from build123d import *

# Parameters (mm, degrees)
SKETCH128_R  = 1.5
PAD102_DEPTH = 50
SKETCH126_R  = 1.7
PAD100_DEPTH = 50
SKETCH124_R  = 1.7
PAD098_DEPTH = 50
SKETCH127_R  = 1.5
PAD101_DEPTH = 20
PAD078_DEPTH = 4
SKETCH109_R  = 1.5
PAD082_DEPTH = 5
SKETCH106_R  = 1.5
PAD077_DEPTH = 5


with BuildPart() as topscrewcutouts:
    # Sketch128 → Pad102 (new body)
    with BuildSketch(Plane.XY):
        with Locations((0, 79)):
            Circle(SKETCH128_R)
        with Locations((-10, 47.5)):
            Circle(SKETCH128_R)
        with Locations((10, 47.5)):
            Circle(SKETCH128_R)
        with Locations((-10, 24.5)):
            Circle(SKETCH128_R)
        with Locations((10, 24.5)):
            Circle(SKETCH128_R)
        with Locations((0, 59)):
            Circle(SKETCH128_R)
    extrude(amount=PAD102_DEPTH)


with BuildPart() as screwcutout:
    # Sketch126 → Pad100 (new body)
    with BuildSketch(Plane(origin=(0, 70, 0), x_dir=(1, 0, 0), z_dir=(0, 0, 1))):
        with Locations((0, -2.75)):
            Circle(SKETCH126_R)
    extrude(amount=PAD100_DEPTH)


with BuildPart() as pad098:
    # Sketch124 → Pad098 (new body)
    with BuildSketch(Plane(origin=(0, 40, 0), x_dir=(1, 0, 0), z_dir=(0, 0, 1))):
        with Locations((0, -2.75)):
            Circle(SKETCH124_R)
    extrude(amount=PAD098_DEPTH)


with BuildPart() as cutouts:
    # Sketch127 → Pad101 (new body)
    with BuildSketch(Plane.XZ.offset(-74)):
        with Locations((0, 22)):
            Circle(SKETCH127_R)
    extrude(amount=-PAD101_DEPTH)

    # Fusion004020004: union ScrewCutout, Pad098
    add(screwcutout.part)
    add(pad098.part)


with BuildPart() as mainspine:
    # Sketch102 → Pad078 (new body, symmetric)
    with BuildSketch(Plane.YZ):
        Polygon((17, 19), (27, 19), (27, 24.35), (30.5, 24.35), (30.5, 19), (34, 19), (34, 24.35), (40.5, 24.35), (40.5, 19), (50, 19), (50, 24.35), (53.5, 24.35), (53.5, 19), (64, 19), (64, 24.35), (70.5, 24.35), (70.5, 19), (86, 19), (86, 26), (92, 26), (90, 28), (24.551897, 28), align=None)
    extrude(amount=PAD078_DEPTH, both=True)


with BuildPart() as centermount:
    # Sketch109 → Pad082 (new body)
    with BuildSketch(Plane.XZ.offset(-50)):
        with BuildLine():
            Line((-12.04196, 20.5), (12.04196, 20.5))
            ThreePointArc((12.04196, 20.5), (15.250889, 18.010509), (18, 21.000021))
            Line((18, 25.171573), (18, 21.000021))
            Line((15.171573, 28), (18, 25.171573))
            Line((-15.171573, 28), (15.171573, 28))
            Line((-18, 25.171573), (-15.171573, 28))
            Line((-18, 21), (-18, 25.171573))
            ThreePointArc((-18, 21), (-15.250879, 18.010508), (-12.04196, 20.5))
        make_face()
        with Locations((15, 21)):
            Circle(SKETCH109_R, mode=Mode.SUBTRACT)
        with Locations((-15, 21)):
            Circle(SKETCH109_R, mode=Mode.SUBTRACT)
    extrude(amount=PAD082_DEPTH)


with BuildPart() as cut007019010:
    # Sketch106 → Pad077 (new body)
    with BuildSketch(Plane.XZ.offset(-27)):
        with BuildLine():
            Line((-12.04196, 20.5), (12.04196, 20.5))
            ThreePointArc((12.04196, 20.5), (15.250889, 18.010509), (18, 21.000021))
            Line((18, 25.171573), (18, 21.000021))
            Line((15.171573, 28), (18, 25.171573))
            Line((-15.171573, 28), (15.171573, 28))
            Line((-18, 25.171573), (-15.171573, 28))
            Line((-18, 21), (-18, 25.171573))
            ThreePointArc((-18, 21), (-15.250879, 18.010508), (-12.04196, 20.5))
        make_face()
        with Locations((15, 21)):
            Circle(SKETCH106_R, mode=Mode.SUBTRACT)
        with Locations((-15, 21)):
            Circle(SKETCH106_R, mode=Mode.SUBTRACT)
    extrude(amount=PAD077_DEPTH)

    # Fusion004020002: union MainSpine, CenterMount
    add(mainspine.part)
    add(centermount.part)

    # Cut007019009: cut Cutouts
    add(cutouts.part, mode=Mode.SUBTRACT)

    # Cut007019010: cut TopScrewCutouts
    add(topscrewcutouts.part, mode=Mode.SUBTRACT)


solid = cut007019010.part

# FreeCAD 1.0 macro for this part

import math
import FreeCAD as App
import Part
import Sketcher
Q = App.Units.Quantity

doc = App.newDocument("Part")
body = doc.addObject("PartDesign::Body", "Body")
body.AllowCompound = True

sketch1 = body.newObject("Sketcher::SketchObject", "Sketch")
sketch1.AttachmentSupport = (doc.getObject("XY_Plane"), [""])
sketch1.MapMode = "FlatFace"
sketch1.addGeometry([
    Part.Circle(App.Vector(0, 79, 0), App.Vector(0, 0, 1), 1.5),
    Part.Circle(App.Vector(-10, 47.5, 0), App.Vector(0, 0, 1), 1.5),
    Part.Circle(App.Vector(10, 47.5, 0), App.Vector(0, 0, 1), 1.5),
    Part.Circle(App.Vector(-10, 24.5, 0), App.Vector(0, 0, 1), 1.5),
    Part.Circle(App.Vector(10, 24.5, 0), App.Vector(0, 0, 1), 1.5),
    Part.Circle(App.Vector(0, 59, 0), App.Vector(0, 0, 1), 1.5),
], False)
sketch1.addConstraint([
    Sketcher.Constraint("Equal", 0, 1),
    Sketcher.Constraint("Equal", 1, 2),
    Sketcher.Constraint("Equal", 2, 3),
    Sketcher.Constraint("Equal", 3, 4),
    Sketcher.Constraint("Equal", 4, 5),
    Sketcher.Constraint("Symmetric", 1, 3, 2, 3, -2),
    Sketcher.Constraint("Symmetric", 3, 3, 4, 3, -2),
    Sketcher.Constraint("PointOnObject", 0, 3, -2),
    Sketcher.Constraint("PointOnObject", 5, 3, -2),
    Sketcher.Constraint("Vertical", 1, 3, 3, 3),
    Sketcher.Constraint("Diameter", 0, Q("3 mm")),
    Sketcher.Constraint("DistanceY", -1, 1, 0, 3, Q("79 mm")),
    Sketcher.Constraint("DistanceX", 1, 3, -1, 1, Q("10 mm")),
    Sketcher.Constraint("DistanceY", -1, 1, 5, 3, Q("59 mm")),
    Sketcher.Constraint("DistanceY", 3, 3, 1, 3, Q("23 mm")),
    Sketcher.Constraint("DistanceY", -1, 1, 1, 3, Q("47.5 mm")),
])
pad1 = body.newObject("PartDesign::Pad", "Pad")
pad1.Profile = sketch1
pad1.Length = 50
body2 = doc.addObject("PartDesign::Body", "Body001")

sketch2 = body2.newObject("Sketcher::SketchObject", "Sketch001")
sketch2.AttachmentSupport = (doc.getObject("XY_Plane001"), [""])
sketch2.MapMode = "FlatFace"
sketch2.addGeometry(Part.Circle(App.Vector(0, 67.2, 0), App.Vector(0, 0, 1), 1.7), False)
sketch2.addConstraint([
    Sketcher.Constraint("PointOnObject", 0, 3, -2),
    Sketcher.Constraint("Diameter", 0, Q("3.4 mm")),
    Sketcher.Constraint("DistanceY", -1, 1, 0, 3, Q("67.25 mm")),
])
pad2 = body2.newObject("PartDesign::Pad", "Pad001")
pad2.Profile = sketch2
pad2.Length = 50
body3 = doc.addObject("PartDesign::Body", "Body002")

sketch3 = body3.newObject("Sketcher::SketchObject", "Sketch002")
sketch3.AttachmentSupport = (doc.getObject("XY_Plane002"), [""])
sketch3.MapMode = "FlatFace"
sketch3.addGeometry(Part.Circle(App.Vector(0, 37.2, 0), App.Vector(0, 0, 1), 1.7), False)
sketch3.addConstraint([
    Sketcher.Constraint("PointOnObject", 0, 3, -2),
    Sketcher.Constraint("Diameter", 0, Q("3.4 mm")),
    Sketcher.Constraint("DistanceY", -1, 1, 0, 3, Q("37.25 mm")),
])
pad3 = body3.newObject("PartDesign::Pad", "Pad002")
pad3.Profile = sketch3
pad3.Length = 50
body4 = doc.addObject("PartDesign::Body", "Body003")
body4.AllowCompound = True

sketch4 = body4.newObject("Sketcher::SketchObject", "Sketch003")
sketch4.AttachmentSupport = (doc.getObject("XZ_Plane003"), [""])
sketch4.MapMode = "FlatFace"
sketch4.AttachmentOffset = App.Placement(App.Vector(0, 0, -74), App.Rotation())
sketch4.addGeometry(Part.Circle(App.Vector(0, 22, 0), App.Vector(0, 0, 1), 1.5), False)
sketch4.addConstraint([
    Sketcher.Constraint("PointOnObject", 0, 3, -2),
    Sketcher.Constraint("Diameter", 0, Q("3 mm")),
    Sketcher.Constraint("DistanceY", -1, 1, 0, 3, Q("22 mm")),
])
pad4 = body4.newObject("PartDesign::Pad", "Pad003")
pad4.Profile = sketch4
pad4.Length = 20
pad4.Reversed = True
doc.recompute()

boolean = body4.newObject("PartDesign::Boolean", "Boolean")
boolean.Type = "Fuse"
boolean.addObjects([body2])
doc.recompute()

boolean2 = body4.newObject("PartDesign::Boolean", "Boolean001")
boolean2.Type = "Fuse"
boolean2.addObjects([body3])
body5 = doc.addObject("PartDesign::Body", "Body004")

sketch5 = body5.newObject("Sketcher::SketchObject", "Sketch004")
sketch5.AttachmentSupport = (doc.getObject("YZ_Plane004"), [""])
sketch5.MapMode = "FlatFace"
sketch5.addGeometry([
    Part.LineSegment(App.Vector(17, 19, 0), App.Vector(27, 19, 0)),
    Part.LineSegment(App.Vector(27, 19, 0), App.Vector(27, 24.4, 0)),
    Part.LineSegment(App.Vector(27, 24.4, 0), App.Vector(30.5, 24.4, 0)),
    Part.LineSegment(App.Vector(30.5, 24.4, 0), App.Vector(30.5, 19, 0)),
    Part.LineSegment(App.Vector(30.5, 19, 0), App.Vector(34, 19, 0)),
    Part.LineSegment(App.Vector(34, 19, 0), App.Vector(34, 24.4, 0)),
    Part.LineSegment(App.Vector(34, 24.4, 0), App.Vector(40.5, 24.4, 0)),
    Part.LineSegment(App.Vector(40.5, 24.4, 0), App.Vector(40.5, 19, 0)),
    Part.LineSegment(App.Vector(40.5, 19, 0), App.Vector(50, 19, 0)),
    Part.LineSegment(App.Vector(50, 19, 0), App.Vector(50, 24.4, 0)),
    Part.LineSegment(App.Vector(50, 24.4, 0), App.Vector(53.5, 24.4, 0)),
    Part.LineSegment(App.Vector(53.5, 24.4, 0), App.Vector(53.5, 19, 0)),
    Part.LineSegment(App.Vector(53.5, 19, 0), App.Vector(64, 19, 0)),
    Part.LineSegment(App.Vector(64, 19, 0), App.Vector(64, 24.4, 0)),
    Part.LineSegment(App.Vector(64, 24.4, 0), App.Vector(70.5, 24.4, 0)),
    Part.LineSegment(App.Vector(70.5, 24.4, 0), App.Vector(70.5, 19, 0)),
    Part.LineSegment(App.Vector(70.5, 19, 0), App.Vector(86, 19, 0)),
    Part.LineSegment(App.Vector(86, 19, 0), App.Vector(86, 26, 0)),
    Part.LineSegment(App.Vector(86, 26, 0), App.Vector(92, 26, 0)),
    Part.LineSegment(App.Vector(92, 26, 0), App.Vector(90, 28, 0)),
    Part.LineSegment(App.Vector(90, 28, 0), App.Vector(24.6, 28, 0)),
    Part.LineSegment(App.Vector(24.6, 28, 0), App.Vector(17, 19, 0)),
], False)
sketch5.addConstraint([
    Sketcher.Constraint("Coincident", 0, 2, 1, 1),
    Sketcher.Constraint("Coincident", 1, 2, 2, 1),
    Sketcher.Constraint("Coincident", 2, 2, 3, 1),
    Sketcher.Constraint("Coincident", 3, 2, 4, 1),
    Sketcher.Constraint("Coincident", 4, 2, 5, 1),
    Sketcher.Constraint("Coincident", 5, 2, 6, 1),
    Sketcher.Constraint("Coincident", 6, 2, 7, 1),
    Sketcher.Constraint("Coincident", 7, 2, 8, 1),
    Sketcher.Constraint("Coincident", 8, 2, 9, 1),
    Sketcher.Constraint("Coincident", 9, 2, 10, 1),
    Sketcher.Constraint("Coincident", 10, 2, 11, 1),
    Sketcher.Constraint("Coincident", 11, 2, 12, 1),
    Sketcher.Constraint("Coincident", 12, 2, 13, 1),
    Sketcher.Constraint("Coincident", 13, 2, 14, 1),
    Sketcher.Constraint("Coincident", 14, 2, 15, 1),
    Sketcher.Constraint("Coincident", 15, 2, 16, 1),
    Sketcher.Constraint("Coincident", 16, 2, 17, 1),
    Sketcher.Constraint("Coincident", 17, 2, 18, 1),
    Sketcher.Constraint("Coincident", 18, 2, 19, 1),
    Sketcher.Constraint("Coincident", 19, 2, 20, 1),
    Sketcher.Constraint("Coincident", 20, 2, 21, 1),
    Sketcher.Constraint("Coincident", 21, 2, 0, 1),
    Sketcher.Constraint("Horizontal", 0),
    Sketcher.Constraint("Vertical", 1),
    Sketcher.Constraint("Horizontal", 2),
    Sketcher.Constraint("Vertical", 3),
    Sketcher.Constraint("Horizontal", 4),
    Sketcher.Constraint("Vertical", 5),
    Sketcher.Constraint("Horizontal", 6),
    Sketcher.Constraint("Vertical", 7),
    Sketcher.Constraint("Horizontal", 8),
    Sketcher.Constraint("Vertical", 9),
    Sketcher.Constraint("Horizontal", 10),
    Sketcher.Constraint("Vertical", 11),
    Sketcher.Constraint("Horizontal", 12),
    Sketcher.Constraint("Vertical", 13),
    Sketcher.Constraint("Horizontal", 14),
    Sketcher.Constraint("Vertical", 15),
    Sketcher.Constraint("Horizontal", 16),
    Sketcher.Constraint("Vertical", 17),
    Sketcher.Constraint("Horizontal", 18),
    Sketcher.Constraint("Horizontal", 20),
    Sketcher.Constraint("Horizontal", 0, 2, 3, 2),
    Sketcher.Constraint("Horizontal", 2, 2, 5, 2),
    Sketcher.Constraint("Horizontal", 4, 2, 7, 2),
    Sketcher.Constraint("Horizontal", 6, 2, 9, 2),
    Sketcher.Constraint("Horizontal", 8, 2, 11, 2),
    Sketcher.Constraint("Horizontal", 10, 2, 13, 2),
    Sketcher.Constraint("Horizontal", 12, 2, 15, 2),
    Sketcher.Constraint("Equal", 2, 4),
    Sketcher.Constraint("Equal", 4, 10),
    Sketcher.Constraint("Equal", 6, 14),
    Sketcher.Constraint("DistanceX", 0, 1, 0, 2, Q("10 mm")),
    Sketcher.Constraint("DistanceX", 18, 1, 18, 2, Q("6 mm")),
    Sketcher.Constraint("DistanceY", 17, 1, 17, 2, Q("7 mm")),
    Sketcher.Constraint("Angle", 19, Q("135 deg")),
    Sketcher.Constraint("Angle", 21, Q("-130.000001 deg")),
    Sketcher.Constraint("DistanceX", 2, 1, 2, 2, Q("3.5 mm")),
    Sketcher.Constraint("DistanceX", 6, 1, 6, 2, Q("6.5 mm")),
    Sketcher.Constraint("DistanceX", 8, 1, 8, 2, Q("9.5 mm")),
    Sketcher.Constraint("DistanceX", 12, 1, 12, 2, Q("10.5 mm")),
    Sketcher.Constraint("DistanceX", 16, 1, 16, 2, Q("15.5 mm")),
    Sketcher.Constraint("DistanceX", -1, 1, 0, 2, Q("27 mm")),
    Sketcher.Constraint("DistanceY", -1, 1, 0, 2, Q("19 mm")),
    Sketcher.Constraint("DistanceX", -1, 1, 19, 2, Q("90 mm")),
    Sketcher.Constraint("DistanceY", 1, 1, 1, 2, Q("5.35 mm")),
])
pad5 = body5.newObject("PartDesign::Pad", "Pad004")
pad5.Profile = sketch5
pad5.Length = 8
pad5.Midplane = True
body6 = doc.addObject("PartDesign::Body", "Body005")

sketch6 = body6.newObject("Sketcher::SketchObject", "Sketch005")
sketch6.AttachmentSupport = (doc.getObject("XZ_Plane005"), [""])
sketch6.MapMode = "FlatFace"
sketch6.AttachmentOffset = App.Placement(App.Vector(0, 0, -50), App.Rotation())
sketch6.addGeometry([
    Part.LineSegment(App.Vector(-12, 20.5, 0), App.Vector(12, 20.5, 0)),
    Part.ArcOfCircle(Part.Circle(App.Vector(15, 21, 0), App.Vector(0, 0, 1), 3), math.radians(-170), math.radians(0)),
    Part.LineSegment(App.Vector(18, 21, 0), App.Vector(18, 25.2, 0)),
    Part.LineSegment(App.Vector(18, 25.2, 0), App.Vector(15.2, 28, 0)),
    Part.LineSegment(App.Vector(15.2, 28, 0), App.Vector(-15.2, 28, 0)),
    Part.LineSegment(App.Vector(-15.2, 28, 0), App.Vector(-18, 25.2, 0)),
    Part.LineSegment(App.Vector(-18, 25.2, 0), App.Vector(-18, 21, 0)),
    Part.ArcOfCircle(Part.Circle(App.Vector(-15, 21, 0), App.Vector(0, 0, 1), 3), math.radians(180), math.radians(350)),
    Part.Circle(App.Vector(-15, 21, 0), App.Vector(0, 0, 1), 1.5),
    Part.Circle(App.Vector(15, 21, 0), App.Vector(0, 0, 1), 1.5),
], False)
sketch6.addConstraint([
    Sketcher.Constraint("Coincident", 0, 2, 1, 1),
    Sketcher.Constraint("Coincident", 1, 2, 2, 1),
    Sketcher.Constraint("Coincident", 2, 2, 3, 1),
    Sketcher.Constraint("Coincident", 3, 2, 4, 1),
    Sketcher.Constraint("Coincident", 4, 2, 5, 1),
    Sketcher.Constraint("Coincident", 5, 2, 6, 1),
    Sketcher.Constraint("Tangent", 6, 2, 7, 1),
    Sketcher.Constraint("Coincident", 7, 2, 0, 1),
    Sketcher.Constraint("Horizontal", 0),
    Sketcher.Constraint("Vertical", 2),
    Sketcher.Constraint("Horizontal", 4),
    Sketcher.Constraint("Vertical", 6),
    Sketcher.Constraint("Coincident", 8, 3, 7, 3),
    Sketcher.Constraint("Coincident", 9, 3, 1, 3),
    Sketcher.Constraint("Equal", 1, 7),
    Sketcher.Constraint("Equal", 8, 9),
    Sketcher.Constraint("Symmetric", 1, 3, 7, 3, -2),
    Sketcher.Constraint("Perpendicular", 3, 5),
    Sketcher.Constraint("Horizontal", 2, 2, 5, 2),
    Sketcher.Constraint("Equal", 3, 5),
    Sketcher.Constraint("Diameter", 8, Q("3 mm")),
    Sketcher.Constraint("Radius", 1, Q("3 mm")),
    Sketcher.Constraint("Distance", 3, Q("4 mm")),
    Sketcher.Constraint("DistanceX", -1, 1, 1, 3, Q("15 mm")),
    Sketcher.Constraint("DistanceY", -1, 1, 1, 3, Q("21 mm")),
    Sketcher.Constraint("DistanceY", -1, 1, 3, 2, Q("28 mm")),
    Sketcher.Constraint("DistanceY", -1, 1, 0, 2, Q("20.5 mm")),
    Sketcher.Constraint("DistanceY", 2, 1, 2, 2, Q("4.171552 mm")),
])
pad6 = body6.newObject("PartDesign::Pad", "Pad005")
pad6.Profile = sketch6
pad6.Length = 5
body7 = doc.addObject("PartDesign::Body", "Body006")

sketch7 = body7.newObject("Sketcher::SketchObject", "Sketch006")
sketch7.AttachmentSupport = (doc.getObject("XZ_Plane006"), [""])
sketch7.MapMode = "FlatFace"
sketch7.AttachmentOffset = App.Placement(App.Vector(0, 0, -27), App.Rotation())
sketch7.addGeometry([
    Part.LineSegment(App.Vector(-12, 20.5, 0), App.Vector(12, 20.5, 0)),
    Part.ArcOfCircle(Part.Circle(App.Vector(15, 21, 0), App.Vector(0, 0, 1), 3), math.radians(-170), math.radians(0)),
    Part.LineSegment(App.Vector(18, 21, 0), App.Vector(18, 25.2, 0)),
    Part.LineSegment(App.Vector(18, 25.2, 0), App.Vector(15.2, 28, 0)),
    Part.LineSegment(App.Vector(15.2, 28, 0), App.Vector(-15.2, 28, 0)),
    Part.LineSegment(App.Vector(-15.2, 28, 0), App.Vector(-18, 25.2, 0)),
    Part.LineSegment(App.Vector(-18, 25.2, 0), App.Vector(-18, 21, 0)),
    Part.ArcOfCircle(Part.Circle(App.Vector(-15, 21, 0), App.Vector(0, 0, 1), 3), math.radians(180), math.radians(350)),
    Part.Circle(App.Vector(-15, 21, 0), App.Vector(0, 0, 1), 1.5),
    Part.Circle(App.Vector(15, 21, 0), App.Vector(0, 0, 1), 1.5),
], False)
sketch7.addConstraint([
    Sketcher.Constraint("Coincident", 0, 2, 1, 1),
    Sketcher.Constraint("Coincident", 1, 2, 2, 1),
    Sketcher.Constraint("Coincident", 2, 2, 3, 1),
    Sketcher.Constraint("Coincident", 3, 2, 4, 1),
    Sketcher.Constraint("Coincident", 4, 2, 5, 1),
    Sketcher.Constraint("Coincident", 5, 2, 6, 1),
    Sketcher.Constraint("Tangent", 6, 2, 7, 1),
    Sketcher.Constraint("Coincident", 7, 2, 0, 1),
    Sketcher.Constraint("Horizontal", 0),
    Sketcher.Constraint("Vertical", 2),
    Sketcher.Constraint("Horizontal", 4),
    Sketcher.Constraint("Vertical", 6),
    Sketcher.Constraint("Coincident", 8, 3, 7, 3),
    Sketcher.Constraint("Coincident", 9, 3, 1, 3),
    Sketcher.Constraint("Equal", 1, 7),
    Sketcher.Constraint("Equal", 8, 9),
    Sketcher.Constraint("Symmetric", 1, 3, 7, 3, -2),
    Sketcher.Constraint("Perpendicular", 3, 5),
    Sketcher.Constraint("Horizontal", 2, 2, 5, 2),
    Sketcher.Constraint("Equal", 3, 5),
    Sketcher.Constraint("Diameter", 8, Q("3 mm")),
    Sketcher.Constraint("Radius", 1, Q("3 mm")),
    Sketcher.Constraint("Distance", 3, Q("4 mm")),
    Sketcher.Constraint("DistanceX", -1, 1, 1, 3, Q("15 mm")),
    Sketcher.Constraint("DistanceY", -1, 1, 1, 3, Q("21 mm")),
    Sketcher.Constraint("DistanceY", -1, 1, 3, 2, Q("28 mm")),
    Sketcher.Constraint("DistanceY", -1, 1, 0, 2, Q("20.5 mm")),
    Sketcher.Constraint("DistanceY", 2, 1, 2, 2, Q("4.171552 mm")),
])
pad7 = body7.newObject("PartDesign::Pad", "Pad006")
pad7.Profile = sketch7
pad7.Length = 5
doc.recompute()

boolean3 = body7.newObject("PartDesign::Boolean", "Boolean002")
boolean3.Type = "Fuse"
boolean3.addObjects([body5])
doc.recompute()

boolean4 = body7.newObject("PartDesign::Boolean", "Boolean003")
boolean4.Type = "Fuse"
boolean4.addObjects([body6])
doc.recompute()

boolean5 = body7.newObject("PartDesign::Boolean", "Boolean004")
boolean5.Type = "Cut"
boolean5.addObjects([body4])
doc.recompute()

boolean6 = body7.newObject("PartDesign::Boolean", "Boolean005")
boolean6.Type = "Cut"
boolean6.addObjects([body])

doc.recompute()
